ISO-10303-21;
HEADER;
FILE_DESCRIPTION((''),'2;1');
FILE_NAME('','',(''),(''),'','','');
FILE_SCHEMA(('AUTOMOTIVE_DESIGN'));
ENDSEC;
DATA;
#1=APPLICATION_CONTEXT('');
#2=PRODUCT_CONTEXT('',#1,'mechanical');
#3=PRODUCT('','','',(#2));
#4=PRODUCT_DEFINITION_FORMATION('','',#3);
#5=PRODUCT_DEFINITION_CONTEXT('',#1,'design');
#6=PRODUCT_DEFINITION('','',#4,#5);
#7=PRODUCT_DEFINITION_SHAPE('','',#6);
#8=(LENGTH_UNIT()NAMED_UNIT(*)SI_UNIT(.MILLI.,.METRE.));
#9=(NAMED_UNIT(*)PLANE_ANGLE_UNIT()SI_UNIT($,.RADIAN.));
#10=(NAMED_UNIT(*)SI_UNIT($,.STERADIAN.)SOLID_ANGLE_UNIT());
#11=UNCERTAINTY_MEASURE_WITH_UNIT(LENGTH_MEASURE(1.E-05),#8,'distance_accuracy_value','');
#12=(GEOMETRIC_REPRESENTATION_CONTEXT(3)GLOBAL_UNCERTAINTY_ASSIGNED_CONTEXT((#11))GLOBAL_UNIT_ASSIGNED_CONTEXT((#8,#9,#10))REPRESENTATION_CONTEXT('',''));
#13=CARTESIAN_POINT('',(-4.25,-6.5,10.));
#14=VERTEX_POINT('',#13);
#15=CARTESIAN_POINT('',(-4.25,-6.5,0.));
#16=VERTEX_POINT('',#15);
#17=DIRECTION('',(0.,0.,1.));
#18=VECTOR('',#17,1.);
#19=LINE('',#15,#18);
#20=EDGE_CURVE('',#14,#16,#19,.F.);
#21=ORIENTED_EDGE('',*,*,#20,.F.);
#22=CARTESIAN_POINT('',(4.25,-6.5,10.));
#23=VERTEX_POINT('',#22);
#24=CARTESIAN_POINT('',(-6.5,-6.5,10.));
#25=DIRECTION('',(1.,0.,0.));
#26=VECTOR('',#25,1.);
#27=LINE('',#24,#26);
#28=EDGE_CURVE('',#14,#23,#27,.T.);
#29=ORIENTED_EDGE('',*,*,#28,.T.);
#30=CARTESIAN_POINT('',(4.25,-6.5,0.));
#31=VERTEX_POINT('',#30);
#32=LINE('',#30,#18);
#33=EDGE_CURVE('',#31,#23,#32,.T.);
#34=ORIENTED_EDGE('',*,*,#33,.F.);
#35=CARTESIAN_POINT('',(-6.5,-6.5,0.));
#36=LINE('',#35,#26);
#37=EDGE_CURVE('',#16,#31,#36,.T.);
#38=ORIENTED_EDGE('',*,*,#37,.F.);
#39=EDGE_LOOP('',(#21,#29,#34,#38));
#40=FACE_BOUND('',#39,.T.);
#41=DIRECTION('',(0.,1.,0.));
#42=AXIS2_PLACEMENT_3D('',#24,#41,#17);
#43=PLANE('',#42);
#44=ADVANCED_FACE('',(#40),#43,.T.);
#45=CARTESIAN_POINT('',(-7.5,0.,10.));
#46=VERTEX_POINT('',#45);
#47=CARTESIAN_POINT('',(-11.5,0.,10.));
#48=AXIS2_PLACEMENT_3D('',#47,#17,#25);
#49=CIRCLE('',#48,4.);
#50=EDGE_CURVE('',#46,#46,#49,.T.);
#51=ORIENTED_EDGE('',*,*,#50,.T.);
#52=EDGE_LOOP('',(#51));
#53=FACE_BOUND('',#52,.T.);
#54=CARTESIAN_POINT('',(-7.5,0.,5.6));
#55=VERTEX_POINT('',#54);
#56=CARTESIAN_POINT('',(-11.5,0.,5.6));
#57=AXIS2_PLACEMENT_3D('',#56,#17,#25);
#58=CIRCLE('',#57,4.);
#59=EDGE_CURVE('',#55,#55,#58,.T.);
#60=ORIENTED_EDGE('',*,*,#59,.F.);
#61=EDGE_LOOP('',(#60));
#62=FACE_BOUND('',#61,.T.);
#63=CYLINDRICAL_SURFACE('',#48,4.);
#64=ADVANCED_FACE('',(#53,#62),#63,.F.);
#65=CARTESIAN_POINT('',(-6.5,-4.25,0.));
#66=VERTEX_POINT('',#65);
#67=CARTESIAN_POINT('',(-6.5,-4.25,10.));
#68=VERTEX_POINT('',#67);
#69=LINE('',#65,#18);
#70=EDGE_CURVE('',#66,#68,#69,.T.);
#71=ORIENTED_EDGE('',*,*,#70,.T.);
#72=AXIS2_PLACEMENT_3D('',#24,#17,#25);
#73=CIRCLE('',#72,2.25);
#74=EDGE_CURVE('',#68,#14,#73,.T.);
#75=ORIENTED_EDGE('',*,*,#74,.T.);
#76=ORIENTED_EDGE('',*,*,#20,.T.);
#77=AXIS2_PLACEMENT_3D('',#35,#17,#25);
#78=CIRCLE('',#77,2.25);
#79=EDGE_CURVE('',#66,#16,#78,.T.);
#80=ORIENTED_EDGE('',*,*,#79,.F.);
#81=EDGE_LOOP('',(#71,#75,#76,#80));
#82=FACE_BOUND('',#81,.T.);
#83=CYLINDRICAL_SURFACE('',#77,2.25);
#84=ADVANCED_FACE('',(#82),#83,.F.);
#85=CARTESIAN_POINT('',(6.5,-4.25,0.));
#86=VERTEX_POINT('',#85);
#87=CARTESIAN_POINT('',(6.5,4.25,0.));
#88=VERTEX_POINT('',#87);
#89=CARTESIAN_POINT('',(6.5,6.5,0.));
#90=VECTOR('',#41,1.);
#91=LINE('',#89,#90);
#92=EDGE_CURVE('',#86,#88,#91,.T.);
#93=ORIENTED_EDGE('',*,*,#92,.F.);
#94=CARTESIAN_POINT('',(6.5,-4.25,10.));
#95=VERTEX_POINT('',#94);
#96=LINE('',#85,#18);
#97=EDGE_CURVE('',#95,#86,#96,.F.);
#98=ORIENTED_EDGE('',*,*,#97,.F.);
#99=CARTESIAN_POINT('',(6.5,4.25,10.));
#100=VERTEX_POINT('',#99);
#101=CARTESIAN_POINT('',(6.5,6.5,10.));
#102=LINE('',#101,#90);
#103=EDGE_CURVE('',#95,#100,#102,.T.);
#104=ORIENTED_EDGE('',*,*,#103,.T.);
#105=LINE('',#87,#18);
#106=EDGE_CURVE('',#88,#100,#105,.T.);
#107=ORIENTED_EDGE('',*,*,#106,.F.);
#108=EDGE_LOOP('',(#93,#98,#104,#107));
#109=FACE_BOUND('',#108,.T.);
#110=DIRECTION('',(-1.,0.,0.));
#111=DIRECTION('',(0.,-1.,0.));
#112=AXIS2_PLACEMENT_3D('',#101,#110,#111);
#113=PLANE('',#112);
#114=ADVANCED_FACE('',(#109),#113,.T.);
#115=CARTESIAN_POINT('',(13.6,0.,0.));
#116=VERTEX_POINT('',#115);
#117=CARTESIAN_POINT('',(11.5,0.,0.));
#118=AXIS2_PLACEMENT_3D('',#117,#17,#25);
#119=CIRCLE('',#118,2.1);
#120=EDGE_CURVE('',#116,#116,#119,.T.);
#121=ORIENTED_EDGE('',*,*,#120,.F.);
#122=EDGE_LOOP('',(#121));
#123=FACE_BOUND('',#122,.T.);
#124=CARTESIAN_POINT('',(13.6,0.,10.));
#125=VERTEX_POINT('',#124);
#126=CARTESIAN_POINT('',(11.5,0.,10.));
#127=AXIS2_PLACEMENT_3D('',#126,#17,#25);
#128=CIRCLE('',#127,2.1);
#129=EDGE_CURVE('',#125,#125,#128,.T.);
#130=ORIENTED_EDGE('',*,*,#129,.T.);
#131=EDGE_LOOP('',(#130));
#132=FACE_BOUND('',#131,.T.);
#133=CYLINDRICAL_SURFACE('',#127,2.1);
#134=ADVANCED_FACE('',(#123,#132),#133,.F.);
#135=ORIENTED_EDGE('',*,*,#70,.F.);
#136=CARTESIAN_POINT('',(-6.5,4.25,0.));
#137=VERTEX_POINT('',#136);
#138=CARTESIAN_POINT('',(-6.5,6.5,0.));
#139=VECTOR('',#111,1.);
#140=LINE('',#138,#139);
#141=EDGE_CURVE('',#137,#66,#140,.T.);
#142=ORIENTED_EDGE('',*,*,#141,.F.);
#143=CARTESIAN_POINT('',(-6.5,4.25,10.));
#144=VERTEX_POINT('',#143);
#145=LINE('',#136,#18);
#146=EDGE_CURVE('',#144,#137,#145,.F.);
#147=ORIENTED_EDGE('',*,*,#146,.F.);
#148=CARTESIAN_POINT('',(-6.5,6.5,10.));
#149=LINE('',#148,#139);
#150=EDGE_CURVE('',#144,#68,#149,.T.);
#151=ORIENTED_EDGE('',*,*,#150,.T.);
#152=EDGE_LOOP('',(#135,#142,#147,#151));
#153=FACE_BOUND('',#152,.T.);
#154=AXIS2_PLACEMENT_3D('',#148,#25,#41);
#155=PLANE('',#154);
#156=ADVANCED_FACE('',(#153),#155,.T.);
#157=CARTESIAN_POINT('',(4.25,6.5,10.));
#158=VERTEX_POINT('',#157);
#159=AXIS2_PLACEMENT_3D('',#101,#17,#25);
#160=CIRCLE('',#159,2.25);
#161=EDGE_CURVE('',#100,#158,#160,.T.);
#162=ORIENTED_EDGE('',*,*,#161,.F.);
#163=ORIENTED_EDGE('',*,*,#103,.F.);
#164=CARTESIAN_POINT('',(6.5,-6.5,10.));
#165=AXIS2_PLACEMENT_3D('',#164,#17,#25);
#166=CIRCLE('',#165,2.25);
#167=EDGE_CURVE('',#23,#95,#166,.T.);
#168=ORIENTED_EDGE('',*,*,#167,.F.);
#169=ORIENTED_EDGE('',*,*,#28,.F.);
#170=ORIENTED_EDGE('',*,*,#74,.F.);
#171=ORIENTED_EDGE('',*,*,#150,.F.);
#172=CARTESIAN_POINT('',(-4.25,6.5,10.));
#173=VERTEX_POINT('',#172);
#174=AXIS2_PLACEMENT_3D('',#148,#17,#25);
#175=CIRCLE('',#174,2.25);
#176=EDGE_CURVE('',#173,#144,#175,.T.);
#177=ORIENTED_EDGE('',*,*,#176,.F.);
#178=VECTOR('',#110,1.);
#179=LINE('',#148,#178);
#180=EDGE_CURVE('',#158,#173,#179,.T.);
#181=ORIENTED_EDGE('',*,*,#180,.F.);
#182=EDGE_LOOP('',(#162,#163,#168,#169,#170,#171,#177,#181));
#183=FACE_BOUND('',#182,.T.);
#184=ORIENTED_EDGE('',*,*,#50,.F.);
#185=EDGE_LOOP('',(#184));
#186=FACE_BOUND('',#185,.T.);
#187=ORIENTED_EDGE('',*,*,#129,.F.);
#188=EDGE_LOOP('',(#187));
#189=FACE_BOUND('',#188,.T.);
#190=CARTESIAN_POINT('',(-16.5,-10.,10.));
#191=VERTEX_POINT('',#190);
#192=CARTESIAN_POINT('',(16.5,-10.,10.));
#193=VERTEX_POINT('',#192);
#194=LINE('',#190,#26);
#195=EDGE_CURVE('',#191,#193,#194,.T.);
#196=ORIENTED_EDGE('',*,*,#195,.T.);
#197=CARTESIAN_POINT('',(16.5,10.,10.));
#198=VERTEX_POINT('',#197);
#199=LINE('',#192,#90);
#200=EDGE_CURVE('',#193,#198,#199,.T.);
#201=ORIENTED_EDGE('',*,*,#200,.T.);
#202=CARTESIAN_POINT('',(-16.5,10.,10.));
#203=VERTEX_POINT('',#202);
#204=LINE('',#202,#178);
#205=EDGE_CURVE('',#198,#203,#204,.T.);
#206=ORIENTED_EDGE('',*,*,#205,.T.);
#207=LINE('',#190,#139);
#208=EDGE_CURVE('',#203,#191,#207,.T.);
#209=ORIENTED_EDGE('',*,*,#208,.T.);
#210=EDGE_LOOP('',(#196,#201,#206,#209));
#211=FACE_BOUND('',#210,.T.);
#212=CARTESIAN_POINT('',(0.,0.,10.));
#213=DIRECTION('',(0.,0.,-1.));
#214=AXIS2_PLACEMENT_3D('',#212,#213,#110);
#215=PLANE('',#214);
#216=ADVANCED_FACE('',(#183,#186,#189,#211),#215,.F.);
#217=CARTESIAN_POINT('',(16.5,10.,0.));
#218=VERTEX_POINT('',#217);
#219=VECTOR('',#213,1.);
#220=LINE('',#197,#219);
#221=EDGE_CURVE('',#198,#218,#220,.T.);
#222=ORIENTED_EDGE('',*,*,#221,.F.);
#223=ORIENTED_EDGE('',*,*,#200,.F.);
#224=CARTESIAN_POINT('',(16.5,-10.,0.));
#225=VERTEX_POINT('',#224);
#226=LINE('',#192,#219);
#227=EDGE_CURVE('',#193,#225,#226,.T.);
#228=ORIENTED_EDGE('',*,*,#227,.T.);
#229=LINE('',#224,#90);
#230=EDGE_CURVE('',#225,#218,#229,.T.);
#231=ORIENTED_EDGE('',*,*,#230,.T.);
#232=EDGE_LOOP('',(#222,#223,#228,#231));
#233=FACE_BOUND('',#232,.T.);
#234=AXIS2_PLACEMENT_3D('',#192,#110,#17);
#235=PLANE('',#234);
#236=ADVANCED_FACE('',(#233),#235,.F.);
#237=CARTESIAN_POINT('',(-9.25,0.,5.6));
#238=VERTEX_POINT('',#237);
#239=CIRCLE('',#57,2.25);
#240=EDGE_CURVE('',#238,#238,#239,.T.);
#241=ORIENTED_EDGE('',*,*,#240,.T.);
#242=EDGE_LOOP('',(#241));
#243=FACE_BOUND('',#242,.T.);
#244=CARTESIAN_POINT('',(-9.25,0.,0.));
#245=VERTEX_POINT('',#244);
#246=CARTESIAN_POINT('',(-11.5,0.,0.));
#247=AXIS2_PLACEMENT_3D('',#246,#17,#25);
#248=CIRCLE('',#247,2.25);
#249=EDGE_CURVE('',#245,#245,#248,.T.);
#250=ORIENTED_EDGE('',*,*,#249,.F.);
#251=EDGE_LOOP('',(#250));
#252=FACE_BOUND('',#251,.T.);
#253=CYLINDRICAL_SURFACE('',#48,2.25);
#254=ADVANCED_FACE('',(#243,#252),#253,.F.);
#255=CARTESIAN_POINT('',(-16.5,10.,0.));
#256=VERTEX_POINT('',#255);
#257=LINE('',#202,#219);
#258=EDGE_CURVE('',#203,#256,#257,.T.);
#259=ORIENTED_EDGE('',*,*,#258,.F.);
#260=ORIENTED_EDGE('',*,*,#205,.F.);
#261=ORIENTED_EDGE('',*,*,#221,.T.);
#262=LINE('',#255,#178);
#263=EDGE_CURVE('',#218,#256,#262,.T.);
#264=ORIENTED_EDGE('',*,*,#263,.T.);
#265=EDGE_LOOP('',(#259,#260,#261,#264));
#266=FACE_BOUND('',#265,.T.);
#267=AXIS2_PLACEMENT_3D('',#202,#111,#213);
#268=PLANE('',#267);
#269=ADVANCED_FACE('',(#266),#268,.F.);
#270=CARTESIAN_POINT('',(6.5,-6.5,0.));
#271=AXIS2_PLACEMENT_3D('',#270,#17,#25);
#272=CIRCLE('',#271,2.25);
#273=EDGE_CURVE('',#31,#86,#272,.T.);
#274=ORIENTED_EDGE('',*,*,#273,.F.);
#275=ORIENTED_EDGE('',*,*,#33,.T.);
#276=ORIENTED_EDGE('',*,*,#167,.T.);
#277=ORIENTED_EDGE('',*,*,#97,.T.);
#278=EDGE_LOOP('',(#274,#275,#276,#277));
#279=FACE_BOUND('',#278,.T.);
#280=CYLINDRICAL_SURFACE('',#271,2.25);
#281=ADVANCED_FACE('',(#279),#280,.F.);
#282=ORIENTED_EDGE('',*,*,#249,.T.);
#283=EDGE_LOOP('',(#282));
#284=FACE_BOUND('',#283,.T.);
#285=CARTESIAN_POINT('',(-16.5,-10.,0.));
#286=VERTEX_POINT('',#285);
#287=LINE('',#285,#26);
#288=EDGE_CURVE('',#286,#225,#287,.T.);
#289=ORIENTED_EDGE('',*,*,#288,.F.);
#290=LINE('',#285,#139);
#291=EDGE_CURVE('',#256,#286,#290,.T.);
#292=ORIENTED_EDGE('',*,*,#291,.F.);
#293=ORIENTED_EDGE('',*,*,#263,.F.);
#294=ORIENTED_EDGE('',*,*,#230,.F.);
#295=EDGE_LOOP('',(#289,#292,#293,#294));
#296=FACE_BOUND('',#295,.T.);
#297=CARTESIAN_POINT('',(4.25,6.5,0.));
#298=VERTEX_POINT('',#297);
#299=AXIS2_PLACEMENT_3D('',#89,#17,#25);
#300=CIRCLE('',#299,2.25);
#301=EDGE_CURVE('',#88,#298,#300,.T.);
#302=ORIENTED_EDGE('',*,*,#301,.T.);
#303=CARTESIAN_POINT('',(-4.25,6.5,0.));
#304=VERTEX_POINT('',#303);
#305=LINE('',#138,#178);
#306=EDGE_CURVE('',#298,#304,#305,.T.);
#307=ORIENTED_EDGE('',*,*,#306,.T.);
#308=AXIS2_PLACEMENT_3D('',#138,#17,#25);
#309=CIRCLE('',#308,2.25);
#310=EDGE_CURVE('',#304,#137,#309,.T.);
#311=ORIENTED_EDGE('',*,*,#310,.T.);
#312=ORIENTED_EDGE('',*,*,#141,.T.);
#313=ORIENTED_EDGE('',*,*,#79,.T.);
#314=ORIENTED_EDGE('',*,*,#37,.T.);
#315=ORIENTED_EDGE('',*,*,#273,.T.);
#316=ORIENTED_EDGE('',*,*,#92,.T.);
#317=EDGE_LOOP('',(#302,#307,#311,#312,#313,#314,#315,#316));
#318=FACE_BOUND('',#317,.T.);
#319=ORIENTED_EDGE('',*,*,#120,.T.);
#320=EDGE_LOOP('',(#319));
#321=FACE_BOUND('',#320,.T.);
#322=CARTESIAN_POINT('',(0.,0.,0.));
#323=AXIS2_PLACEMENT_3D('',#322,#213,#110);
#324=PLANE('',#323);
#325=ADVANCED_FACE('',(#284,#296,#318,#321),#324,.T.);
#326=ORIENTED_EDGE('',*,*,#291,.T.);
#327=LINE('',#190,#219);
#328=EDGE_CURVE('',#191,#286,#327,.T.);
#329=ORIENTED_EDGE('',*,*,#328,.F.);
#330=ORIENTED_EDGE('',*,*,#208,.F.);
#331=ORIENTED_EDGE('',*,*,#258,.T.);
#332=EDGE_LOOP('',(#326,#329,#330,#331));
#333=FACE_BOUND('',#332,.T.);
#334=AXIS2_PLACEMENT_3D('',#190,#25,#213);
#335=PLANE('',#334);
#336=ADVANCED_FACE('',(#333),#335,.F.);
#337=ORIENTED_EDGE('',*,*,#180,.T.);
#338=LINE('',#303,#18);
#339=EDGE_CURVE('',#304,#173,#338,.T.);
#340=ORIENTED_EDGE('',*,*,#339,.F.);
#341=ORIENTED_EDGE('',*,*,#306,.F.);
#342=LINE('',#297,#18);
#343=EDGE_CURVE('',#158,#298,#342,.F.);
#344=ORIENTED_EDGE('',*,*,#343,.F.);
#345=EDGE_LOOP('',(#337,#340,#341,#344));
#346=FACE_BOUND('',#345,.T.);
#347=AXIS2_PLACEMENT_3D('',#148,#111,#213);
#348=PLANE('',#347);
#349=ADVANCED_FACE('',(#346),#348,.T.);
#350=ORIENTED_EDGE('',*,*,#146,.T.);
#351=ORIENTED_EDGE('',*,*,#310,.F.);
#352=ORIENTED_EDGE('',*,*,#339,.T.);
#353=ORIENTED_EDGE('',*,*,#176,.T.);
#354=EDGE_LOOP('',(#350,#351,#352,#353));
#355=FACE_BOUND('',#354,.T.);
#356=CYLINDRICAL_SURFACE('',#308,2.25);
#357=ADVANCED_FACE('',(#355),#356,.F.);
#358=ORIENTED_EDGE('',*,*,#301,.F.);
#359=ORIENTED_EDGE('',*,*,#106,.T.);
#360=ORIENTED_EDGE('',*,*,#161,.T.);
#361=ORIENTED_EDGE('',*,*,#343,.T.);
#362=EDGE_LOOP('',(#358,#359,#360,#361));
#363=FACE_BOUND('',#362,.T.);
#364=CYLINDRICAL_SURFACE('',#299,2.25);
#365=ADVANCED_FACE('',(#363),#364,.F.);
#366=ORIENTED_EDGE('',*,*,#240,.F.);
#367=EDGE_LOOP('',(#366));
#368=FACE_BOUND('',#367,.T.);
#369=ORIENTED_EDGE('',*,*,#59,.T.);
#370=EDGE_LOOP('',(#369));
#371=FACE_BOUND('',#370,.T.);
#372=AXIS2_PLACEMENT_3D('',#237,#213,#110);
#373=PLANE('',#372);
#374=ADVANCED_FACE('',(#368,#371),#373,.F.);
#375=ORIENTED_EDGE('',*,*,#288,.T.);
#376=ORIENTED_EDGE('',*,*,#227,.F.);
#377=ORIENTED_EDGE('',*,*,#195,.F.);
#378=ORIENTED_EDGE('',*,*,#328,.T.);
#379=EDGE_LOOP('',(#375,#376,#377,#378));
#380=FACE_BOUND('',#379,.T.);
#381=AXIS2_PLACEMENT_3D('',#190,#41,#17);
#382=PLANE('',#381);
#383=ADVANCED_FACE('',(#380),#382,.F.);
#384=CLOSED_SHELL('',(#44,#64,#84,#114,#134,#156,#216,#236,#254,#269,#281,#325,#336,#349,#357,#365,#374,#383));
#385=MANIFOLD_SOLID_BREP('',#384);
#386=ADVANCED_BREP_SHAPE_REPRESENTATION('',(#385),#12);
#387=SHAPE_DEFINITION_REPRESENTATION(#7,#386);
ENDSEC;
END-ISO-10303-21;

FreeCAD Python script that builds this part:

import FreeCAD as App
import Part
import Sketcher

V = App.Vector
Q = App.Units.Quantity


def add_polygon(sketch, points):
    """Adds a closed chain of lines whose ends are joined by coincident constraints."""
    first, n = sketch.GeometryCount, len(points)
    for a, b in zip(points, points[1:] + points[:1]):
        sketch.addGeometry(Part.LineSegment(App.Vector(*a, 0), App.Vector(*b, 0)), False)
    for i in range(n):
        sketch.addConstraint(Sketcher.Constraint("Coincident", first + i, 2, first + (i + 1) % n, 1))

doc = App.newDocument("Part")
body = doc.addObject("PartDesign::Body", "Body")

# Sketch on XY plane
sketch1 = body.newObject("Sketcher::SketchObject", "Sketch")
sketch1.AttachmentSupport = (doc.getObject("XY_Plane"), [""])
sketch1.MapMode = "FlatFace"
add_polygon(sketch1, [(-16.5, 10), (-16.5, -10), (16.5, -10), (16.5, 10)])  # lines 0-3
add_polygon(sketch1, [(6.5, -6.5), (-6.5, -6.5), (-6.5, 6.5), (6.5, 6.5)])  # lines 4-7
sketch1.addConstraint(Sketcher.Constraint("Vertical", 0))
sketch1.addConstraint(Sketcher.Constraint("Horizontal", 1))
sketch1.addConstraint(Sketcher.Constraint("Vertical", 2))
sketch1.addConstraint(Sketcher.Constraint("Horizontal", 3))
sketch1.addConstraint(Sketcher.Constraint("Horizontal", 4))
sketch1.addConstraint(Sketcher.Constraint("Vertical", 5))
sketch1.addConstraint(Sketcher.Constraint("Horizontal", 6))
sketch1.addConstraint(Sketcher.Constraint("Vertical", 7))
sketch1.addConstraint(Sketcher.Constraint("Symmetric", 0, 2, 2, 2, -1, 1))
sketch1.addConstraint(Sketcher.Constraint("Symmetric", 4, 2, 6, 2, -1, 1))
sketch1.addConstraint(Sketcher.Constraint("Equal", 6, 5))
sketch1.addConstraint(Sketcher.Constraint("DistanceX", 1, 1, 1, 2, Q("33 mm")))
sketch1.addConstraint(Sketcher.Constraint("DistanceX", 4, 2, 4, 1, Q("13 mm")))
sketch1.addConstraint(Sketcher.Constraint("DistanceY", 0, 2, 0, 1, Q("20 mm")))
pad1 = body.newObject("PartDesign::Pad", "Pad")
pad1.Profile = sketch1
pad1.Length = 10

# Sketch on XY plane
sketch2 = body.newObject("Sketcher::SketchObject", "Sketch001")
sketch2.AttachmentSupport = (doc.getObject("XY_Plane"), [""])
sketch2.MapMode = "FlatFace"
sketch2.AttachmentOffset = App.Placement(V(0, 0, 10), App.Rotation())
sketch2.addGeometry(Part.Circle(V(-11.5, 0, 0), V(0, 0, 1), 2.25), False)
sketch2.addConstraint(Sketcher.Constraint("PointOnObject", 0, 3, -1))
sketch2.addConstraint(Sketcher.Constraint("Diameter", 0, Q("4.5 mm")))
sketch2.addConstraint(Sketcher.Constraint("DistanceX", 0, 3, -1, 1, Q("11.5 mm")))
doc.recompute()
hole = body.newObject("PartDesign::Hole", "Hole")
hole.Profile = sketch2
hole.ThreadType = "None"
hole.Diameter = 4.5
hole.DepthType = "ThroughAll"
hole.HoleCutType = "Counterbore"
hole.HoleCutDiameter = 8
hole.HoleCutDepth = 4.4

# Sketch on XY plane
sketch3 = body.newObject("Sketcher::SketchObject", "Sketch002")
sketch3.AttachmentSupport = (doc.getObject("XY_Plane"), [""])
sketch3.MapMode = "FlatFace"
sketch3.AttachmentOffset = App.Placement(V(0, 0, 10), App.Rotation())
sketch3.addGeometry(Part.Circle(V(-6.5, 6.5, 0), V(0, 0, 1), 2.25), False)
sketch3.addGeometry(Part.Circle(V(-6.5, -6.5, 0), V(0, 0, 1), 2.25), False)
sketch3.addGeometry(Part.Circle(V(6.5, -6.5, 0), V(0, 0, 1), 2.25), False)
sketch3.addGeometry(Part.Circle(V(6.5, 6.5, 0), V(0, 0, 1), 2.25), False)
sketch3.addConstraint(Sketcher.Constraint("Equal", 0, 1))
sketch3.addConstraint(Sketcher.Constraint("Equal", 1, 2))
sketch3.addConstraint(Sketcher.Constraint("Equal", 2, 3))
sketch3.addConstraint(Sketcher.Constraint("Symmetric", 0, 3, 2, 3, -1, 1))
sketch3.addConstraint(Sketcher.Constraint("Symmetric", 1, 3, 3, 3, -1, 1))
sketch3.addConstraint(Sketcher.Constraint("Symmetric", 1, 3, 2, 3, -2))
sketch3.addConstraint(Sketcher.Constraint("Diameter", 0, Q("4.5 mm")))
sketch3.addConstraint(Sketcher.Constraint("DistanceY", 1, 3, 0, 3, Q("13 mm")))
sketch3.addConstraint(Sketcher.Constraint("DistanceX", 1, 3, 2, 3, Q("13 mm")))
pocket1 = body.newObject("PartDesign::Pocket", "Pocket")
pocket1.Profile = sketch3
pocket1.Type = "ThroughAll"

# Sketch on XY plane
sketch4 = body.newObject("Sketcher::SketchObject", "Sketch003")
sketch4.AttachmentSupport = (doc.getObject("XY_Plane"), [""])
sketch4.MapMode = "FlatFace"
sketch4.AttachmentOffset = App.Placement(V(0, 0, 10), App.Rotation())
sketch4.addGeometry(Part.Circle(V(11.5, 0, 0), V(0, 0, 1), 2.1), False)
sketch4.addConstraint(Sketcher.Constraint("PointOnObject", 0, 3, -1))
sketch4.addConstraint(Sketcher.Constraint("Diameter", 0, Q("4.2 mm")))
sketch4.addConstraint(Sketcher.Constraint("DistanceX", -1, 1, 0, 3, Q("11.5 mm")))
doc.recompute()
hole2 = body.newObject("PartDesign::Hole", "Hole001")
hole2.Profile = sketch4
hole2.ThreadType = "None"
hole2.Diameter = 4.2
hole2.DepthType = "ThroughAll"

doc.recompute()
